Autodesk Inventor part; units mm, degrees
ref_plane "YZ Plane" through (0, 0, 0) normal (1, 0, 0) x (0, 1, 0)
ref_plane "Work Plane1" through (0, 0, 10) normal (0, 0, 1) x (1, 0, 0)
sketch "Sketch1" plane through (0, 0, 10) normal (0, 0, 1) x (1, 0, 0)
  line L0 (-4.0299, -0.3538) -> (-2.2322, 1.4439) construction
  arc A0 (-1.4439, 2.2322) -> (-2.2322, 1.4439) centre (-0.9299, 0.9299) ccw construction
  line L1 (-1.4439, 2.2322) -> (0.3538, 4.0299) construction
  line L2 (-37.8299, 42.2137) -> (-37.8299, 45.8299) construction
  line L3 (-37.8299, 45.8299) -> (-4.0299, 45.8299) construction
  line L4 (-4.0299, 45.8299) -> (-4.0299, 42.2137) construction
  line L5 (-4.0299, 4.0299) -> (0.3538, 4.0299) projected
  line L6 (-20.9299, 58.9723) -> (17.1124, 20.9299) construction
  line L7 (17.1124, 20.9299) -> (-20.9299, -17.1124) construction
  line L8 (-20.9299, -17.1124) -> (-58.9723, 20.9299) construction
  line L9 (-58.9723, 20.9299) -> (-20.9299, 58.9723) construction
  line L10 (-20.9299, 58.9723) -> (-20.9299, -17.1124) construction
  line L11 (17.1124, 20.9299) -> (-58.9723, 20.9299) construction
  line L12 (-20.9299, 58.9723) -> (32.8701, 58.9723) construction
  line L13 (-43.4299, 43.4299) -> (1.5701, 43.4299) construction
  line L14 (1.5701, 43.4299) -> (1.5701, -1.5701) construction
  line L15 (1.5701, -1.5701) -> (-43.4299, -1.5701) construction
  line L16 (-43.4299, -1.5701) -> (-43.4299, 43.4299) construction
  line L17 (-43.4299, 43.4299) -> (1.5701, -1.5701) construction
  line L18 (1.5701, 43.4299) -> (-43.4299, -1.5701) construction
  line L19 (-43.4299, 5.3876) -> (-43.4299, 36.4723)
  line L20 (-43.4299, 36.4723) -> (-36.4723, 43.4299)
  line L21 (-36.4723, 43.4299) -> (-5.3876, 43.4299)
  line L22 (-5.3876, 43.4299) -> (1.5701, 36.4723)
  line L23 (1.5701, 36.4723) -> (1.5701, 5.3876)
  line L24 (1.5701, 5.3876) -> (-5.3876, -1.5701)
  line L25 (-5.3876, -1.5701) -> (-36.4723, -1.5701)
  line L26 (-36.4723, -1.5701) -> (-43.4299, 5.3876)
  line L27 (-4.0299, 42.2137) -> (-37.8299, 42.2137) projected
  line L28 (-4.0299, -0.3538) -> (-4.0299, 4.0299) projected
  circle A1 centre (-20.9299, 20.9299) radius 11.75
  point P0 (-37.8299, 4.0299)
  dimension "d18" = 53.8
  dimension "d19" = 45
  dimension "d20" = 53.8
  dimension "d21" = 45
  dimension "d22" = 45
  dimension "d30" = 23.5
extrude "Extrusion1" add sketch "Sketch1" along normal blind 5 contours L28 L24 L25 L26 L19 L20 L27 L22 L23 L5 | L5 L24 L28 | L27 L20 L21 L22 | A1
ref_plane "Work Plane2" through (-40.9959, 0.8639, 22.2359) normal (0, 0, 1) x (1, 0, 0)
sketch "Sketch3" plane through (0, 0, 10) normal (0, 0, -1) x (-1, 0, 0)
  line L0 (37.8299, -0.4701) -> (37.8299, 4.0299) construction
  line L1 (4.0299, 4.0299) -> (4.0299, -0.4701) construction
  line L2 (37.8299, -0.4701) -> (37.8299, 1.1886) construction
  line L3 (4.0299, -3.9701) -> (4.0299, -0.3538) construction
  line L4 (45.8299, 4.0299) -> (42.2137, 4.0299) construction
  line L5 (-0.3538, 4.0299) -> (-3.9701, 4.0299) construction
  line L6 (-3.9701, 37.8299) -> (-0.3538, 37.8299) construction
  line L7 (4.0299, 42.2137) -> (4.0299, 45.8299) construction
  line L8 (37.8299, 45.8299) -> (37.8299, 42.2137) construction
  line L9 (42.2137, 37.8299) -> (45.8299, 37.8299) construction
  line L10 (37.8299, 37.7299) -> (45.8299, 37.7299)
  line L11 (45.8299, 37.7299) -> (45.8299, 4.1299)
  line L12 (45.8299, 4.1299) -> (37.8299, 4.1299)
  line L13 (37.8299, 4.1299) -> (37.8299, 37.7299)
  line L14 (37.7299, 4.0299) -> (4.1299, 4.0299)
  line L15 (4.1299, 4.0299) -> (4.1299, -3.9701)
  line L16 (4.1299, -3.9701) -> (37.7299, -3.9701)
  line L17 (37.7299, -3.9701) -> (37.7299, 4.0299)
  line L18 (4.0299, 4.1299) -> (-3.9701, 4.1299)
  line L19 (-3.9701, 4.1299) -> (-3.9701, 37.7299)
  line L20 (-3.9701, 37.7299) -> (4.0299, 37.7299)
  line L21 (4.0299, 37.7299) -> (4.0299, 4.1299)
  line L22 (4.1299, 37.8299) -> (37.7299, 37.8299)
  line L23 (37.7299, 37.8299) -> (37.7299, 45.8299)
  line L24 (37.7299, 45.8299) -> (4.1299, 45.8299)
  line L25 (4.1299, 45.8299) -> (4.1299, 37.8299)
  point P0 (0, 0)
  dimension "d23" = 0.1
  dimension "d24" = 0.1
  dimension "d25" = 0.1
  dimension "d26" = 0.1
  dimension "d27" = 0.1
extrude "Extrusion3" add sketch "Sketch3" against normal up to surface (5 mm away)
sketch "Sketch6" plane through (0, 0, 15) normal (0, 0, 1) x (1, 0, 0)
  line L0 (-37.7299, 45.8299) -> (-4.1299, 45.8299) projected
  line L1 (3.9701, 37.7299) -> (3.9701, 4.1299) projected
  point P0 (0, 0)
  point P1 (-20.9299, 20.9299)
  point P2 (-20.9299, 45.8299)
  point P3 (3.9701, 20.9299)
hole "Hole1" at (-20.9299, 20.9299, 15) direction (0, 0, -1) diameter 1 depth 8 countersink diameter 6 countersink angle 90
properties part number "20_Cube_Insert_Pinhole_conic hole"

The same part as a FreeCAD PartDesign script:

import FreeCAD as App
import Part
import Sketcher

V = App.Vector
Q = App.Units.Quantity


def add_polygon(sketch, points):
    """Adds a closed chain of lines whose ends are joined by coincident constraints."""
    first, n = sketch.GeometryCount, len(points)
    for a, b in zip(points, points[1:] + points[:1]):
        sketch.addGeometry(Part.LineSegment(App.Vector(*a, 0), App.Vector(*b, 0)), False)
    for i in range(n):
        sketch.addConstraint(Sketcher.Constraint("Coincident", first + i, 2, first + (i + 1) % n, 1))

doc = App.newDocument("Part")
body = doc.addObject("PartDesign::Body", "Body")

sketch1 = doc.addObject("Sketcher::SketchObject", "Sketch")
body.addObject(sketch1)
sketch1.AttachmentSupport = (doc.XY_Plane, [""])
sketch1.MapMode = "FlatFace"
sketch1.AttachmentOffset = App.Placement(V(0, 0, 10), App.Rotation())
add_polygon(sketch1, [(-5, -2), (2, 5), (2, 36), (-5, 43), (-36, 43), (-43, 36), (-43, 5), (-36, -2)])
sketch1.addConstraint(Sketcher.Constraint("Vertical", 1))
sketch1.addConstraint(Sketcher.Constraint("Horizontal", 3))
sketch1.addConstraint(Sketcher.Constraint("Vertical", 5))
sketch1.addConstraint(Sketcher.Constraint("Horizontal", 7))
sketch1.addConstraint(Sketcher.Constraint("Perpendicular", 0, 2))
sketch1.addConstraint(Sketcher.Constraint("Perpendicular", 2, 4))
sketch1.addConstraint(Sketcher.Constraint("Perpendicular", 4, 6))
sketch1.addConstraint(Sketcher.Constraint("Horizontal", 1, 2, 4, 2))
sketch1.addConstraint(Sketcher.Constraint("Horizontal", 0, 2, 5, 2))
sketch1.addConstraint(Sketcher.Constraint("Vertical", 3, 2, 6, 2))
sketch1.addConstraint(Sketcher.Constraint("Vertical", 2, 2, 7, 2))
sketch1.addConstraint(Sketcher.Constraint("Equal", 7, 1))
sketch1.addConstraint(Sketcher.Constraint("DistanceX", 4, 2, 1, 2, Q("45 mm")))
sketch1.addConstraint(Sketcher.Constraint("DistanceX", -1, 1, 0, 2, Q("1.57 mm")))
sketch1.addConstraint(Sketcher.Constraint("DistanceY", -1, 1, 2, 2, Q("43.43 mm")))
sketch1.addConstraint(Sketcher.Constraint("DistanceX", 3, 2, 3, 1, Q("31.0847 mm")))
pad1 = doc.addObject("PartDesign::Pad", "Pad")
body.addObject(pad1)
pad1.Profile = sketch1
pad1.Length = 5

sketch2 = doc.addObject("Sketcher::SketchObject", "Sketch001")
body.addObject(sketch2)
sketch2.AttachmentSupport = (doc.XY_Plane, [""])
sketch2.MapMode = "FlatFace"
sketch2.AttachmentOffset = App.Placement(V(0, 0, 10), App.Rotation())
add_polygon(sketch2, [(-46, 38), (-38, 38), (-38, 4), (-46, 4)])
add_polygon(sketch2, [(-38, -4), (-38, 4), (-4, 4), (-4, -4)])
add_polygon(sketch2, [(4, 4), (-4, 4), (-4, 38), (4, 38)])
add_polygon(sketch2, [(-4, 46), (-4, 38), (-38, 38), (-38, 46)])
sketch2.addConstraint(Sketcher.Constraint("Horizontal", 0))
sketch2.addConstraint(Sketcher.Constraint("Vertical", 1))
sketch2.addConstraint(Sketcher.Constraint("Horizontal", 2))
sketch2.addConstraint(Sketcher.Constraint("Vertical", 3))
sketch2.addConstraint(Sketcher.Constraint("Vertical", 4))
sketch2.addConstraint(Sketcher.Constraint("Horizontal", 5))
sketch2.addConstraint(Sketcher.Constraint("Vertical", 6))
sketch2.addConstraint(Sketcher.Constraint("Horizontal", 7))
sketch2.addConstraint(Sketcher.Constraint("Horizontal", 8))
sketch2.addConstraint(Sketcher.Constraint("Vertical", 9))
sketch2.addConstraint(Sketcher.Constraint("Horizontal", 10))
sketch2.addConstraint(Sketcher.Constraint("Vertical", 11))
sketch2.addConstraint(Sketcher.Constraint("Vertical", 12))
sketch2.addConstraint(Sketcher.Constraint("Horizontal", 13))
sketch2.addConstraint(Sketcher.Constraint("Vertical", 14))
sketch2.addConstraint(Sketcher.Constraint("Horizontal", 15))
sketch2.addConstraint(Sketcher.Constraint("Horizontal", 2, 2, 8, 2))
sketch2.addConstraint(Sketcher.Constraint("Horizontal", 3, 2, 9, 2))
sketch2.addConstraint(Sketcher.Constraint("Vertical", 6, 2, 12, 2))
sketch2.addConstraint(Sketcher.Constraint("Vertical", 7, 2, 13, 2))
sketch2.addConstraint(Sketcher.Constraint("Equal", 2, 8))
sketch2.addConstraint(Sketcher.Constraint("Equal", 15, 1))
sketch2.addConstraint(Sketcher.Constraint("Equal", 10, 4))
sketch2.addConstraint(Sketcher.Constraint("Equal", 6, 12))
sketch2.addConstraint(Sketcher.Constraint("DistanceX", 1, 2, 4, 2, Q("0.1 mm")))
sketch2.addConstraint(Sketcher.Constraint("DistanceY", 4, 2, 1, 2, Q("0.1 mm")))
sketch2.addConstraint(Sketcher.Constraint("DistanceX", 5, 2, 8, 2, Q("0.1 mm")))
sketch2.addConstraint(Sketcher.Constraint("DistanceY", 9, 2, 12, 2, Q("0.1 mm")))
sketch2.addConstraint(Sketcher.Constraint("DistanceX", 0, 1, 0, 2, Q("8 mm")))
sketch2.addConstraint(Sketcher.Constraint("DistanceX", 5, 1, 5, 2, Q("33.6 mm")))
sketch2.addConstraint(Sketcher.Constraint("DistanceX", 0, 2, -1, 1, Q("37.83 mm")))
sketch2.addConstraint(Sketcher.Constraint("DistanceY", -1, 1, 0, 2, Q("37.73 mm")))
pad2 = doc.addObject("PartDesign::Pad", "Pad001")
body.addObject(pad2)
pad2.Profile = sketch2
pad2.Length = 5

sketch3 = doc.addObject("Sketcher::SketchObject", "Sketch002")
body.addObject(sketch3)
sketch3.AttachmentSupport = (doc.XY_Plane, [""])
sketch3.MapMode = "FlatFace"
sketch3.AttachmentOffset = App.Placement(V(0, 0, 15), App.Rotation())
sketch3.addGeometry(Part.Circle(V(-20.9, 20.9, 0), V(0, 0, 1), 0.5), False)
sketch3.addConstraint(Sketcher.Constraint("Diameter", 0, Q("1 mm")))
sketch3.addConstraint(Sketcher.Constraint("DistanceX", 0, 3, -1, 1, Q("20.93 mm")))
sketch3.addConstraint(Sketcher.Constraint("DistanceY", -1, 1, 0, 3, Q("20.93 mm")))
doc.recompute()
hole = doc.addObject("PartDesign::Hole", "Hole")
body.addObject(hole)
hole.Profile = sketch3
hole.ThreadType = "None"
hole.Diameter = 1
hole.DepthType = "Dimension"
hole.Depth = 8
hole.DrillPoint = "Flat"
hole.HoleCutType = "Countersink"
hole.HoleCutDiameter = 6
hole.HoleCutCountersinkAngle = 90

doc.recompute()
